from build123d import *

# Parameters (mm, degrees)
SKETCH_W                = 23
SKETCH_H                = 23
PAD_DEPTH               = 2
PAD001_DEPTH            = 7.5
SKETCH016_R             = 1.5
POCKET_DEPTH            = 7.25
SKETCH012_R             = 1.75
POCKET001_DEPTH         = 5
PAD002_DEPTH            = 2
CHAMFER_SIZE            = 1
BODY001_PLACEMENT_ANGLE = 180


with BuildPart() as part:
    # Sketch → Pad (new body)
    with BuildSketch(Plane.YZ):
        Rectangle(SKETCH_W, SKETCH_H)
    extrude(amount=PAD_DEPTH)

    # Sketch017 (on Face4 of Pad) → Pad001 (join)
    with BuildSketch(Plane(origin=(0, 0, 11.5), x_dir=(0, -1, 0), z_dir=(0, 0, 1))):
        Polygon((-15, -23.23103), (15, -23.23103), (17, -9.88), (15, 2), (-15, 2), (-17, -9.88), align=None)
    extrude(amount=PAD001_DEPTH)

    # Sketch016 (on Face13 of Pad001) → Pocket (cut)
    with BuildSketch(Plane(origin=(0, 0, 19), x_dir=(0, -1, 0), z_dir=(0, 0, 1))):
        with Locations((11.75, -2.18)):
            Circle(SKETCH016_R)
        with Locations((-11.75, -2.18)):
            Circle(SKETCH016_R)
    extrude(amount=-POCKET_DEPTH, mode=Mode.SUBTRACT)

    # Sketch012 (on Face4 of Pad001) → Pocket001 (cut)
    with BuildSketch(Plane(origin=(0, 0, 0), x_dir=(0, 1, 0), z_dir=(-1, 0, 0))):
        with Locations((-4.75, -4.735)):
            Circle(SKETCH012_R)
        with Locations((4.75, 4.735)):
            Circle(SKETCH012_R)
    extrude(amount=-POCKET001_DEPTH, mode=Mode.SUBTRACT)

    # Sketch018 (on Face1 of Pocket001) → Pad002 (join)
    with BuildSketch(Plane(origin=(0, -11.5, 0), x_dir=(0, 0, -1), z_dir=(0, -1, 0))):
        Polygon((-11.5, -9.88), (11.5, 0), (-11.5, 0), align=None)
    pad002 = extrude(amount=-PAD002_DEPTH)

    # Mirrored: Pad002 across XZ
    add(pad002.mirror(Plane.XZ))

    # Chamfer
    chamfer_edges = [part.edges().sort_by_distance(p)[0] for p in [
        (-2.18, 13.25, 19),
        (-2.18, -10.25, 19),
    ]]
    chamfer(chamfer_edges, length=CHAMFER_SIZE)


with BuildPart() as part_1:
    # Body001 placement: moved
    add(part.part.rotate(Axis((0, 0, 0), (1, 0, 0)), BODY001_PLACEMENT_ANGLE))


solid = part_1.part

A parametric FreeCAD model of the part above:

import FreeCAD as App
import Part
import Sketcher

V = App.Vector


def edges_at(feature, points):
    """Names of the edges that pass closest to the given points."""
    edges = feature.Shape.Edges
    near = lambda p: min(range(len(edges)), key=lambda i: edges[i].distToShape(Part.Vertex(*p))[0])
    return sorted({f"Edge{near(p) + 1}" for p in points})

doc = App.newDocument("Part")
body = doc.addObject("PartDesign::Body", "Body")

# Sketch on YZ plane
sketch1 = body.newObject("Sketcher::SketchObject", "Sketch")
sketch1.AttachmentSupport = (doc.getObject("YZ_Plane"), [""])
sketch1.MapMode = "FlatFace"
sketch1.addGeometry(Part.LineSegment(V(-11.5, 11.5, 0), V(-11.5, -11.5, 0)), False)
sketch1.addGeometry(Part.LineSegment(V(-11.5, -11.5, 0), V(11.5, -11.5, 0)), False)
sketch1.addGeometry(Part.LineSegment(V(11.5, -11.5, 0), V(11.5, 11.5, 0)), False)
sketch1.addGeometry(Part.LineSegment(V(11.5, 11.5, 0), V(-11.5, 11.5, 0)), False)
sketch1.addConstraint(Sketcher.Constraint("Coincident", 0, 2, 1, 1))
sketch1.addConstraint(Sketcher.Constraint("Coincident", 1, 2, 2, 1))
sketch1.addConstraint(Sketcher.Constraint("Coincident", 2, 2, 3, 1))
sketch1.addConstraint(Sketcher.Constraint("Coincident", 3, 2, 0, 1))
sketch1.addConstraint(Sketcher.Constraint("Vertical", 0))
sketch1.addConstraint(Sketcher.Constraint("Horizontal", 1))
sketch1.addConstraint(Sketcher.Constraint("Vertical", 2))
sketch1.addConstraint(Sketcher.Constraint("Horizontal", 3))
sketch1.addConstraint(Sketcher.Constraint("Symmetric", 0, 2, 2, 2, -1, 1))
sketch1.addConstraint(Sketcher.Constraint("Equal", 3, 0))
sketch1.addConstraint(Sketcher.Constraint("DistanceX", 1, 1, 1, 2, 23.0))
pad1 = body.newObject("PartDesign::Pad", "Pad")
pad1.Profile = sketch1
pad1.Length = 2

# Sketch on XY plane
sketch2 = body.newObject("Sketcher::SketchObject", "Sketch001")
sketch2.AttachmentSupport = (doc.getObject("XY_Plane"), [""])
sketch2.MapMode = "FlatFace"
sketch2.AttachmentOffset = App.Placement(V(0, 0, 11.5), App.Rotation())
sketch2.addGeometry(Part.LineSegment(V(-23.23103, 15, 0), V(-23.23103, -15, 0)), False)
sketch2.addGeometry(Part.LineSegment(V(-23.23103, -15, 0), V(-9.88, -17, 0)), False)
sketch2.addGeometry(Part.LineSegment(V(-9.88, -17, 0), V(2, -15, 0)), False)
sketch2.addGeometry(Part.LineSegment(V(2, -15, 0), V(2, 15, 0)), False)
sketch2.addGeometry(Part.LineSegment(V(2, 15, 0), V(-9.88, 17, 0)), False)
sketch2.addGeometry(Part.LineSegment(V(-9.88, 17, 0), V(-23.23103, 15, 0)), False)
sketch2.addConstraint(Sketcher.Constraint("Coincident", 0, 2, 1, 1))
sketch2.addConstraint(Sketcher.Constraint("Coincident", 1, 2, 2, 1))
sketch2.addConstraint(Sketcher.Constraint("Coincident", 2, 2, 3, 1))
sketch2.addConstraint(Sketcher.Constraint("Coincident", 3, 2, 4, 1))
sketch2.addConstraint(Sketcher.Constraint("Coincident", 4, 2, 5, 1))
sketch2.addConstraint(Sketcher.Constraint("Coincident", 5, 2, 0, 1))
sketch2.addConstraint(Sketcher.Constraint("Vertical", 0))
sketch2.addConstraint(Sketcher.Constraint("Vertical", 3))
sketch2.addConstraint(Sketcher.Constraint("Symmetric", 1, 2, 4, 2, -1))
sketch2.addConstraint(Sketcher.Constraint("Horizontal", 0, 2, 2, 2))
sketch2.addConstraint(Sketcher.Constraint("Horizontal", 3, 2, 5, 2))
sketch2.addConstraint(Sketcher.Constraint("Equal", 2, 4))
sketch2.addConstraint(Sketcher.Constraint("DistanceY", 0, 2, 0, 1, 30.0))
sketch2.addConstraint(Sketcher.Constraint("DistanceY", 1, 2, -1, 1, 17.0))
sketch2.addConstraint(Sketcher.Constraint("DistanceX", -1, 1, 2, 2, 2.0))
sketch2.addConstraint(Sketcher.Constraint("Distance", 1, 13.5))
sketch2.addConstraint(Sketcher.Constraint("DistanceX", 1, 2, -1, 1, 9.88))
pad2 = body.newObject("PartDesign::Pad", "Pad001")
pad2.Profile = sketch2
pad2.Length = 7.5

# Sketch on XY plane
sketch3 = body.newObject("Sketcher::SketchObject", "Sketch002")
sketch3.AttachmentSupport = (doc.getObject("XY_Plane"), [""])
sketch3.MapMode = "FlatFace"
sketch3.AttachmentOffset = App.Placement(V(0, 0, 19), App.Rotation())
sketch3.addGeometry(Part.Circle(V(-2.18, -11.75, 0), V(0, 0, 1), 1.5), False)
sketch3.addGeometry(Part.Circle(V(-2.18, 11.75, 0), V(0, 0, 1), 1.5), False)
sketch3.addConstraint(Sketcher.Constraint("Equal", 0, 1))
sketch3.addConstraint(Sketcher.Constraint("Symmetric", 0, 3, 1, 3, -1))
sketch3.addConstraint(Sketcher.Constraint("Diameter", 0, 3.0))
sketch3.addConstraint(Sketcher.Constraint("DistanceY", 0, 3, 1, 3, 23.5))
sketch3.addConstraint(Sketcher.Constraint("DistanceX", 0, 3, -1, 1, 2.18))
pocket1 = body.newObject("PartDesign::Pocket", "Pocket")
pocket1.Profile = sketch3
pocket1.Length = 7.25

# Sketch on YZ plane
sketch4 = body.newObject("Sketcher::SketchObject", "Sketch003")
sketch4.AttachmentSupport = (doc.getObject("YZ_Plane"), [""])
sketch4.MapMode = "FlatFace"
sketch4.addGeometry(Part.Circle(V(-4.75, 4.735, 0), V(0, 0, 1), 1.75), False)
sketch4.addGeometry(Part.Circle(V(4.75, -4.735, 0), V(0, 0, 1), 1.75), False)
sketch4.addConstraint(Sketcher.Constraint("Equal", 0, 1))
sketch4.addConstraint(Sketcher.Constraint("Symmetric", 0, 3, 1, 3, -1, 1))
sketch4.addConstraint(Sketcher.Constraint("Diameter", 0, 3.5))
sketch4.addConstraint(Sketcher.Constraint("DistanceX", 0, 3, 1, 3, 9.5))
sketch4.addConstraint(Sketcher.Constraint("DistanceY", 1, 3, 0, 3, 9.47))
pocket2 = body.newObject("PartDesign::Pocket", "Pocket001")
pocket2.Profile = sketch4
pocket2.Length = 5
pocket2.Reversed = True

# Sketch on XZ plane
sketch5 = body.newObject("Sketcher::SketchObject", "Sketch004")
sketch5.AttachmentSupport = (doc.getObject("XZ_Plane"), [""])
sketch5.MapMode = "FlatFace"
sketch5.AttachmentOffset = App.Placement(V(0, 0, 11.5), App.Rotation())
sketch5.addGeometry(Part.LineSegment(V(-9.88, 11.5, 0), V(0, -11.5, 0)), False)
sketch5.addGeometry(Part.LineSegment(V(0, -11.5, 0), V(0, 11.5, 0)), False)
sketch5.addGeometry(Part.LineSegment(V(0, 11.5, 0), V(-9.88, 11.5, 0)), False)
sketch5.addConstraint(Sketcher.Constraint("Coincident", 0, 2, 1, 1))
sketch5.addConstraint(Sketcher.Constraint("Coincident", 1, 2, 2, 1))
sketch5.addConstraint(Sketcher.Constraint("Coincident", 2, 2, 0, 1))
sketch5.addConstraint(Sketcher.Constraint("Vertical", 1))
sketch5.addConstraint(Sketcher.Constraint("Horizontal", 2))
sketch5.addConstraint(Sketcher.Constraint("Symmetric", 0, 2, 1, 2, -1, 1))
sketch5.addConstraint(Sketcher.Constraint("DistanceY", 1, 1, 1, 2, 23.0))
sketch5.addConstraint(Sketcher.Constraint("DistanceX", 2, 2, 2, 1, 9.88))
pad3 = body.newObject("PartDesign::Pad", "Pad002")
pad3.Profile = sketch5
pad3.Length = 2
pad3.Reversed = True
doc.recompute()

mirrored = body.newObject("PartDesign::Mirrored", "Mirrored")
mirrored.Originals = [pad3]
mirrored.MirrorPlane = (doc.getObject("XZ_Plane"), [""])
body.Tip = mirrored
doc.recompute()

chamfer = body.newObject("PartDesign::Chamfer", "Chamfer")
chamfer.Base = (mirrored, edges_at(mirrored, [(-2.18, 13.25, 19), (-2.18, -10.25, 19)]))
chamfer.Size = 1
body2 = doc.addObject("PartDesign::Body", "Body001")
doc.recompute()

body.Placement = App.Placement(V(0, 0, 0), App.Rotation(V(1, 0, 0), 180))
boolean = body2.newObject("PartDesign::Boolean", "Boolean")
boolean.Type = "Fuse"
boolean.addObjects([body])

doc.recompute()
